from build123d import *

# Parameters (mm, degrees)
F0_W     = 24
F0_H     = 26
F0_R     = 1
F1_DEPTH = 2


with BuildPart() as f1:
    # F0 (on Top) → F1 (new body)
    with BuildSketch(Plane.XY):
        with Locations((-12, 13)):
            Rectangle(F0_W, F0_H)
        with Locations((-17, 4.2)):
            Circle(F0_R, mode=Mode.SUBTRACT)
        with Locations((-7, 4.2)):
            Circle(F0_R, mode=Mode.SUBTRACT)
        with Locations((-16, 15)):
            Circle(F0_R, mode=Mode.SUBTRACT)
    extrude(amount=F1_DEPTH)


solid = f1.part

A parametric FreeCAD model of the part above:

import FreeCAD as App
import Part
import Sketcher

doc = App.newDocument("Part")
body = doc.addObject("PartDesign::Body", "Body")

sketch1 = doc.addObject("Sketcher::SketchObject", "Sketch")
body.addObject(sketch1)
sketch1.AttachmentSupport = (doc.XY_Plane, [""])
sketch1.MapMode = "FlatFace"
sketch1.addGeometry([
    Part.LineSegment(App.Vector(-24, 26, 0), App.Vector(-24, 0, 0)),
    Part.LineSegment(App.Vector(-24, 0, 0), App.Vector(0, 0, 0)),
    Part.LineSegment(App.Vector(0, 0, 0), App.Vector(0, 26, 0)),
    Part.LineSegment(App.Vector(0, 26, 0), App.Vector(-24, 26, 0)),
    Part.Circle(App.Vector(-17, 4.2, 0), App.Vector(0, 0, 1), 1),
    Part.Circle(App.Vector(-7, 4.2, 0), App.Vector(0, 0, 1), 1),
    Part.Circle(App.Vector(-16, 15, 0), App.Vector(0, 0, 1), 1),
], False)
sketch1.addConstraint([
    Sketcher.Constraint("Coincident", 0, 2, 1, 1),
    Sketcher.Constraint("Coincident", 1, 2, 2, 1),
    Sketcher.Constraint("Coincident", 2, 2, 3, 1),
    Sketcher.Constraint("Coincident", 3, 2, 0, 1),
    Sketcher.Constraint("Vertical", 0),
    Sketcher.Constraint("Horizontal", 1),
    Sketcher.Constraint("Vertical", 2),
    Sketcher.Constraint("Horizontal", 3),
    Sketcher.Constraint("Coincident", 1, 2, -1, 1),
    Sketcher.Constraint("Equal", 4, 5),
    Sketcher.Constraint("Equal", 5, 6),
    Sketcher.Constraint("Horizontal", 4, 3, 5, 3),
    Sketcher.Constraint("Diameter", 4, 2.0),
    Sketcher.Constraint("DistanceX", 1, 1, 1, 2, 24.0),
    Sketcher.Constraint("DistanceY", 0, 2, 0, 1, 26.0),
    Sketcher.Constraint("DistanceX", 4, 3, -1, 1, 17.0),
    Sketcher.Constraint("DistanceX", 5, 3, -1, 1, 7.0),
    Sketcher.Constraint("DistanceX", 6, 3, -1, 1, 16.0),
    Sketcher.Constraint("DistanceY", -1, 1, 6, 3, 15.0),
    Sketcher.Constraint("DistanceY", -1, 1, 4, 3, 4.2),
])
pad1 = doc.addObject("PartDesign::Pad", "Pad")
body.addObject(pad1)
pad1.Profile = sketch1
pad1.Length = 2

doc.recompute()
